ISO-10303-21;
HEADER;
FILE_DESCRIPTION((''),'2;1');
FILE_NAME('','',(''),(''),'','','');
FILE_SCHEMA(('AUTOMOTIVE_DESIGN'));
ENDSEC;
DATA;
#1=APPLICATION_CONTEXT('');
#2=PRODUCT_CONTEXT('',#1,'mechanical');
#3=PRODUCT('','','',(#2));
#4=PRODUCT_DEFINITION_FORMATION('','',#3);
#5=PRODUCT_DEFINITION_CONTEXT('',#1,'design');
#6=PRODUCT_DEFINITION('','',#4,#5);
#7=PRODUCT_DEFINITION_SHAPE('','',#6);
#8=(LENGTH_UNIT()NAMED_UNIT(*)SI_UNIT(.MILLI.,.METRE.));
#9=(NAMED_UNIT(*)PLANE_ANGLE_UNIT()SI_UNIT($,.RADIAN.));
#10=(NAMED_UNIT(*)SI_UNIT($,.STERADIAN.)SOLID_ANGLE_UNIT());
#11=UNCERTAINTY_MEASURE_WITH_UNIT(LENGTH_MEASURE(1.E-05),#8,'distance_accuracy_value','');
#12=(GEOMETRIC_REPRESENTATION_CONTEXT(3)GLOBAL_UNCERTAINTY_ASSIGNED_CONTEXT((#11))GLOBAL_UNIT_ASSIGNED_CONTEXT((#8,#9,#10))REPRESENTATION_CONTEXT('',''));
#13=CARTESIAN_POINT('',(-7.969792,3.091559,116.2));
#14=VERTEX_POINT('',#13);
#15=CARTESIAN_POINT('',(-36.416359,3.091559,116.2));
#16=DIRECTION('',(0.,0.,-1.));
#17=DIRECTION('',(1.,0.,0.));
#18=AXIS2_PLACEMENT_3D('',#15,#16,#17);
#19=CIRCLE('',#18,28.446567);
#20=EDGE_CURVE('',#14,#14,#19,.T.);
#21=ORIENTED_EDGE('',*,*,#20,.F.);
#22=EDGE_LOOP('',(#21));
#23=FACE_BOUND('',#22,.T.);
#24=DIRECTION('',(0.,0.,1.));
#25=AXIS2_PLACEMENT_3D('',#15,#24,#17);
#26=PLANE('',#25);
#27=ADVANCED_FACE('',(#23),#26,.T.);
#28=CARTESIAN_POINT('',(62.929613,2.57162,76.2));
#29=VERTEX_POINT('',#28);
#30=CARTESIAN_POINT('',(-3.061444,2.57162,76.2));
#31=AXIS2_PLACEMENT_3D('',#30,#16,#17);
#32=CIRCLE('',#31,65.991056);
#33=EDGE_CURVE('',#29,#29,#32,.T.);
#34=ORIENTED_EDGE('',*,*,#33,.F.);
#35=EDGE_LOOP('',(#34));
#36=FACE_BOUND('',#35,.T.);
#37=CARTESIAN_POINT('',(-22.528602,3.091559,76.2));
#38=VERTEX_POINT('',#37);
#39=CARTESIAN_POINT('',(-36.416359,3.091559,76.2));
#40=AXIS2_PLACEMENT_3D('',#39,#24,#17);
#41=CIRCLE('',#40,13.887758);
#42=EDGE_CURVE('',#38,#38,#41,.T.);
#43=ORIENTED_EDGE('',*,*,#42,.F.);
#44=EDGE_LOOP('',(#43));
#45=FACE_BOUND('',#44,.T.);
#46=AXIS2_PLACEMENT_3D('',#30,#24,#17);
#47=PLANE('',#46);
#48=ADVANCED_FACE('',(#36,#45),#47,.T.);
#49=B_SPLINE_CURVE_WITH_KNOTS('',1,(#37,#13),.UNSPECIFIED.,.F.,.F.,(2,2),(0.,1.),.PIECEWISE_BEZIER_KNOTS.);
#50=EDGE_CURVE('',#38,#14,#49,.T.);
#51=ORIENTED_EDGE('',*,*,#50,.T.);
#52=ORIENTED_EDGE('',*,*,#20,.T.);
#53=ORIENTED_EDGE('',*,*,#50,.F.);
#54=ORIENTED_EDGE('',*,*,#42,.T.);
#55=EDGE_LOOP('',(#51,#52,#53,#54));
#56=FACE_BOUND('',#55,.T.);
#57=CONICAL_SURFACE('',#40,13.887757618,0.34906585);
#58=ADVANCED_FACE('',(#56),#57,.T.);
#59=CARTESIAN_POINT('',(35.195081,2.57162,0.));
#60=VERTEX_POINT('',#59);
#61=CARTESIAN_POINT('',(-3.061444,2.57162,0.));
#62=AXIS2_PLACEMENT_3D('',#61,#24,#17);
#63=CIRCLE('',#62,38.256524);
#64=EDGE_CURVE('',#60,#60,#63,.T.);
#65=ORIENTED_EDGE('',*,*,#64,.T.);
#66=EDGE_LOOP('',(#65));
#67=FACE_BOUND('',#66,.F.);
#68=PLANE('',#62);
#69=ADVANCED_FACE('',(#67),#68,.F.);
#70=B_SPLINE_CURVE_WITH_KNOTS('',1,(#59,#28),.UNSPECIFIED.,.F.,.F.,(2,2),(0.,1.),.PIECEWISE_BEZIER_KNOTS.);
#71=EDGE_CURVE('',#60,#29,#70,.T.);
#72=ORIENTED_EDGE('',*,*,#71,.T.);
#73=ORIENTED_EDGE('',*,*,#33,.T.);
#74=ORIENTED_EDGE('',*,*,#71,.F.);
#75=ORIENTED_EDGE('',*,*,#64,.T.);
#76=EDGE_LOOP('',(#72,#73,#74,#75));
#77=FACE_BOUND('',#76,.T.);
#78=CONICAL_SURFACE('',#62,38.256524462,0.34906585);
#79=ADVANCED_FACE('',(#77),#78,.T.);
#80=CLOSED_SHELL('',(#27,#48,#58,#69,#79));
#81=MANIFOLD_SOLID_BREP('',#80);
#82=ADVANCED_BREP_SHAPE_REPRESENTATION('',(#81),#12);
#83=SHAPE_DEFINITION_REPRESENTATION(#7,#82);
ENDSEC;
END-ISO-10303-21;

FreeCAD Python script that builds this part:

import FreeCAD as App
import Part
import Sketcher
Q = App.Units.Quantity

doc = App.newDocument("Part")
params = doc.addObject("Spreadsheet::Sheet", "Params")
for row, (alias, value) in enumerate([
    ("pad1_length", "76.2 mm"),
    ("pad1_taper", "20 deg"),
    ("pad2_length", "40 mm"),
    ("pad2_taper", "20 deg"),
], start=1):
    params.set(f"A{row}", alias)
    params.set(f"B{row}", "=" + value)
    params.setAlias(f"B{row}", alias)

body = doc.addObject("PartDesign::Body", "Body")

# Sketch on XY plane
sketch1 = doc.addObject("Sketcher::SketchObject", "Sketch")
body.addObject(sketch1)
sketch1.AttachmentSupport = (doc.XY_Plane, [""])
sketch1.MapMode = "FlatFace"
sketch1.addGeometry(Part.Circle(App.Vector(-3, 3, 0), App.Vector(0, 0, 1), 38), False)
sketch1.addConstraint(Sketcher.Constraint("Diameter", 0, Q("76.513049 mm")))
sketch1.addConstraint(Sketcher.Constraint("DistanceY", -1, 1, 0, 3, Q("2.57162 mm")))
sketch1.addConstraint(Sketcher.Constraint("DistanceX", 0, 3, -1, 1, Q("3.061444 mm")))
pad1 = doc.addObject("PartDesign::Pad", "Pad")
body.addObject(pad1)
pad1.Profile = sketch1
pad1.setExpression("Length", "Params.pad1_length")
pad1.setExpression("TaperAngle", "Params.pad1_taper")

# Sketch on XY plane
sketch2 = doc.addObject("Sketcher::SketchObject", "Sketch001")
body.addObject(sketch2)
sketch2.AttachmentSupport = (doc.XY_Plane, [""])
sketch2.MapMode = "FlatFace"
sketch2.AttachmentOffset = App.Placement(App.Vector(0, 0, 76.2), App.Rotation())
sketch2.addGeometry(Part.Circle(App.Vector(-36, 3, 0), App.Vector(0, 0, 1), 14), False)
sketch2.addConstraint(Sketcher.Constraint("Diameter", 0, Q("27.775515 mm")))
sketch2.addConstraint(Sketcher.Constraint("DistanceX", 0, 3, -1, 1, Q("36.416359 mm")))
sketch2.addConstraint(Sketcher.Constraint("DistanceY", -1, 1, 0, 3, Q("3.091559 mm")))
pad2 = doc.addObject("PartDesign::Pad", "Pad001")
body.addObject(pad2)
pad2.Profile = sketch2
pad2.setExpression("Length", "Params.pad2_length")
pad2.setExpression("TaperAngle", "Params.pad2_taper")

doc.recompute()
